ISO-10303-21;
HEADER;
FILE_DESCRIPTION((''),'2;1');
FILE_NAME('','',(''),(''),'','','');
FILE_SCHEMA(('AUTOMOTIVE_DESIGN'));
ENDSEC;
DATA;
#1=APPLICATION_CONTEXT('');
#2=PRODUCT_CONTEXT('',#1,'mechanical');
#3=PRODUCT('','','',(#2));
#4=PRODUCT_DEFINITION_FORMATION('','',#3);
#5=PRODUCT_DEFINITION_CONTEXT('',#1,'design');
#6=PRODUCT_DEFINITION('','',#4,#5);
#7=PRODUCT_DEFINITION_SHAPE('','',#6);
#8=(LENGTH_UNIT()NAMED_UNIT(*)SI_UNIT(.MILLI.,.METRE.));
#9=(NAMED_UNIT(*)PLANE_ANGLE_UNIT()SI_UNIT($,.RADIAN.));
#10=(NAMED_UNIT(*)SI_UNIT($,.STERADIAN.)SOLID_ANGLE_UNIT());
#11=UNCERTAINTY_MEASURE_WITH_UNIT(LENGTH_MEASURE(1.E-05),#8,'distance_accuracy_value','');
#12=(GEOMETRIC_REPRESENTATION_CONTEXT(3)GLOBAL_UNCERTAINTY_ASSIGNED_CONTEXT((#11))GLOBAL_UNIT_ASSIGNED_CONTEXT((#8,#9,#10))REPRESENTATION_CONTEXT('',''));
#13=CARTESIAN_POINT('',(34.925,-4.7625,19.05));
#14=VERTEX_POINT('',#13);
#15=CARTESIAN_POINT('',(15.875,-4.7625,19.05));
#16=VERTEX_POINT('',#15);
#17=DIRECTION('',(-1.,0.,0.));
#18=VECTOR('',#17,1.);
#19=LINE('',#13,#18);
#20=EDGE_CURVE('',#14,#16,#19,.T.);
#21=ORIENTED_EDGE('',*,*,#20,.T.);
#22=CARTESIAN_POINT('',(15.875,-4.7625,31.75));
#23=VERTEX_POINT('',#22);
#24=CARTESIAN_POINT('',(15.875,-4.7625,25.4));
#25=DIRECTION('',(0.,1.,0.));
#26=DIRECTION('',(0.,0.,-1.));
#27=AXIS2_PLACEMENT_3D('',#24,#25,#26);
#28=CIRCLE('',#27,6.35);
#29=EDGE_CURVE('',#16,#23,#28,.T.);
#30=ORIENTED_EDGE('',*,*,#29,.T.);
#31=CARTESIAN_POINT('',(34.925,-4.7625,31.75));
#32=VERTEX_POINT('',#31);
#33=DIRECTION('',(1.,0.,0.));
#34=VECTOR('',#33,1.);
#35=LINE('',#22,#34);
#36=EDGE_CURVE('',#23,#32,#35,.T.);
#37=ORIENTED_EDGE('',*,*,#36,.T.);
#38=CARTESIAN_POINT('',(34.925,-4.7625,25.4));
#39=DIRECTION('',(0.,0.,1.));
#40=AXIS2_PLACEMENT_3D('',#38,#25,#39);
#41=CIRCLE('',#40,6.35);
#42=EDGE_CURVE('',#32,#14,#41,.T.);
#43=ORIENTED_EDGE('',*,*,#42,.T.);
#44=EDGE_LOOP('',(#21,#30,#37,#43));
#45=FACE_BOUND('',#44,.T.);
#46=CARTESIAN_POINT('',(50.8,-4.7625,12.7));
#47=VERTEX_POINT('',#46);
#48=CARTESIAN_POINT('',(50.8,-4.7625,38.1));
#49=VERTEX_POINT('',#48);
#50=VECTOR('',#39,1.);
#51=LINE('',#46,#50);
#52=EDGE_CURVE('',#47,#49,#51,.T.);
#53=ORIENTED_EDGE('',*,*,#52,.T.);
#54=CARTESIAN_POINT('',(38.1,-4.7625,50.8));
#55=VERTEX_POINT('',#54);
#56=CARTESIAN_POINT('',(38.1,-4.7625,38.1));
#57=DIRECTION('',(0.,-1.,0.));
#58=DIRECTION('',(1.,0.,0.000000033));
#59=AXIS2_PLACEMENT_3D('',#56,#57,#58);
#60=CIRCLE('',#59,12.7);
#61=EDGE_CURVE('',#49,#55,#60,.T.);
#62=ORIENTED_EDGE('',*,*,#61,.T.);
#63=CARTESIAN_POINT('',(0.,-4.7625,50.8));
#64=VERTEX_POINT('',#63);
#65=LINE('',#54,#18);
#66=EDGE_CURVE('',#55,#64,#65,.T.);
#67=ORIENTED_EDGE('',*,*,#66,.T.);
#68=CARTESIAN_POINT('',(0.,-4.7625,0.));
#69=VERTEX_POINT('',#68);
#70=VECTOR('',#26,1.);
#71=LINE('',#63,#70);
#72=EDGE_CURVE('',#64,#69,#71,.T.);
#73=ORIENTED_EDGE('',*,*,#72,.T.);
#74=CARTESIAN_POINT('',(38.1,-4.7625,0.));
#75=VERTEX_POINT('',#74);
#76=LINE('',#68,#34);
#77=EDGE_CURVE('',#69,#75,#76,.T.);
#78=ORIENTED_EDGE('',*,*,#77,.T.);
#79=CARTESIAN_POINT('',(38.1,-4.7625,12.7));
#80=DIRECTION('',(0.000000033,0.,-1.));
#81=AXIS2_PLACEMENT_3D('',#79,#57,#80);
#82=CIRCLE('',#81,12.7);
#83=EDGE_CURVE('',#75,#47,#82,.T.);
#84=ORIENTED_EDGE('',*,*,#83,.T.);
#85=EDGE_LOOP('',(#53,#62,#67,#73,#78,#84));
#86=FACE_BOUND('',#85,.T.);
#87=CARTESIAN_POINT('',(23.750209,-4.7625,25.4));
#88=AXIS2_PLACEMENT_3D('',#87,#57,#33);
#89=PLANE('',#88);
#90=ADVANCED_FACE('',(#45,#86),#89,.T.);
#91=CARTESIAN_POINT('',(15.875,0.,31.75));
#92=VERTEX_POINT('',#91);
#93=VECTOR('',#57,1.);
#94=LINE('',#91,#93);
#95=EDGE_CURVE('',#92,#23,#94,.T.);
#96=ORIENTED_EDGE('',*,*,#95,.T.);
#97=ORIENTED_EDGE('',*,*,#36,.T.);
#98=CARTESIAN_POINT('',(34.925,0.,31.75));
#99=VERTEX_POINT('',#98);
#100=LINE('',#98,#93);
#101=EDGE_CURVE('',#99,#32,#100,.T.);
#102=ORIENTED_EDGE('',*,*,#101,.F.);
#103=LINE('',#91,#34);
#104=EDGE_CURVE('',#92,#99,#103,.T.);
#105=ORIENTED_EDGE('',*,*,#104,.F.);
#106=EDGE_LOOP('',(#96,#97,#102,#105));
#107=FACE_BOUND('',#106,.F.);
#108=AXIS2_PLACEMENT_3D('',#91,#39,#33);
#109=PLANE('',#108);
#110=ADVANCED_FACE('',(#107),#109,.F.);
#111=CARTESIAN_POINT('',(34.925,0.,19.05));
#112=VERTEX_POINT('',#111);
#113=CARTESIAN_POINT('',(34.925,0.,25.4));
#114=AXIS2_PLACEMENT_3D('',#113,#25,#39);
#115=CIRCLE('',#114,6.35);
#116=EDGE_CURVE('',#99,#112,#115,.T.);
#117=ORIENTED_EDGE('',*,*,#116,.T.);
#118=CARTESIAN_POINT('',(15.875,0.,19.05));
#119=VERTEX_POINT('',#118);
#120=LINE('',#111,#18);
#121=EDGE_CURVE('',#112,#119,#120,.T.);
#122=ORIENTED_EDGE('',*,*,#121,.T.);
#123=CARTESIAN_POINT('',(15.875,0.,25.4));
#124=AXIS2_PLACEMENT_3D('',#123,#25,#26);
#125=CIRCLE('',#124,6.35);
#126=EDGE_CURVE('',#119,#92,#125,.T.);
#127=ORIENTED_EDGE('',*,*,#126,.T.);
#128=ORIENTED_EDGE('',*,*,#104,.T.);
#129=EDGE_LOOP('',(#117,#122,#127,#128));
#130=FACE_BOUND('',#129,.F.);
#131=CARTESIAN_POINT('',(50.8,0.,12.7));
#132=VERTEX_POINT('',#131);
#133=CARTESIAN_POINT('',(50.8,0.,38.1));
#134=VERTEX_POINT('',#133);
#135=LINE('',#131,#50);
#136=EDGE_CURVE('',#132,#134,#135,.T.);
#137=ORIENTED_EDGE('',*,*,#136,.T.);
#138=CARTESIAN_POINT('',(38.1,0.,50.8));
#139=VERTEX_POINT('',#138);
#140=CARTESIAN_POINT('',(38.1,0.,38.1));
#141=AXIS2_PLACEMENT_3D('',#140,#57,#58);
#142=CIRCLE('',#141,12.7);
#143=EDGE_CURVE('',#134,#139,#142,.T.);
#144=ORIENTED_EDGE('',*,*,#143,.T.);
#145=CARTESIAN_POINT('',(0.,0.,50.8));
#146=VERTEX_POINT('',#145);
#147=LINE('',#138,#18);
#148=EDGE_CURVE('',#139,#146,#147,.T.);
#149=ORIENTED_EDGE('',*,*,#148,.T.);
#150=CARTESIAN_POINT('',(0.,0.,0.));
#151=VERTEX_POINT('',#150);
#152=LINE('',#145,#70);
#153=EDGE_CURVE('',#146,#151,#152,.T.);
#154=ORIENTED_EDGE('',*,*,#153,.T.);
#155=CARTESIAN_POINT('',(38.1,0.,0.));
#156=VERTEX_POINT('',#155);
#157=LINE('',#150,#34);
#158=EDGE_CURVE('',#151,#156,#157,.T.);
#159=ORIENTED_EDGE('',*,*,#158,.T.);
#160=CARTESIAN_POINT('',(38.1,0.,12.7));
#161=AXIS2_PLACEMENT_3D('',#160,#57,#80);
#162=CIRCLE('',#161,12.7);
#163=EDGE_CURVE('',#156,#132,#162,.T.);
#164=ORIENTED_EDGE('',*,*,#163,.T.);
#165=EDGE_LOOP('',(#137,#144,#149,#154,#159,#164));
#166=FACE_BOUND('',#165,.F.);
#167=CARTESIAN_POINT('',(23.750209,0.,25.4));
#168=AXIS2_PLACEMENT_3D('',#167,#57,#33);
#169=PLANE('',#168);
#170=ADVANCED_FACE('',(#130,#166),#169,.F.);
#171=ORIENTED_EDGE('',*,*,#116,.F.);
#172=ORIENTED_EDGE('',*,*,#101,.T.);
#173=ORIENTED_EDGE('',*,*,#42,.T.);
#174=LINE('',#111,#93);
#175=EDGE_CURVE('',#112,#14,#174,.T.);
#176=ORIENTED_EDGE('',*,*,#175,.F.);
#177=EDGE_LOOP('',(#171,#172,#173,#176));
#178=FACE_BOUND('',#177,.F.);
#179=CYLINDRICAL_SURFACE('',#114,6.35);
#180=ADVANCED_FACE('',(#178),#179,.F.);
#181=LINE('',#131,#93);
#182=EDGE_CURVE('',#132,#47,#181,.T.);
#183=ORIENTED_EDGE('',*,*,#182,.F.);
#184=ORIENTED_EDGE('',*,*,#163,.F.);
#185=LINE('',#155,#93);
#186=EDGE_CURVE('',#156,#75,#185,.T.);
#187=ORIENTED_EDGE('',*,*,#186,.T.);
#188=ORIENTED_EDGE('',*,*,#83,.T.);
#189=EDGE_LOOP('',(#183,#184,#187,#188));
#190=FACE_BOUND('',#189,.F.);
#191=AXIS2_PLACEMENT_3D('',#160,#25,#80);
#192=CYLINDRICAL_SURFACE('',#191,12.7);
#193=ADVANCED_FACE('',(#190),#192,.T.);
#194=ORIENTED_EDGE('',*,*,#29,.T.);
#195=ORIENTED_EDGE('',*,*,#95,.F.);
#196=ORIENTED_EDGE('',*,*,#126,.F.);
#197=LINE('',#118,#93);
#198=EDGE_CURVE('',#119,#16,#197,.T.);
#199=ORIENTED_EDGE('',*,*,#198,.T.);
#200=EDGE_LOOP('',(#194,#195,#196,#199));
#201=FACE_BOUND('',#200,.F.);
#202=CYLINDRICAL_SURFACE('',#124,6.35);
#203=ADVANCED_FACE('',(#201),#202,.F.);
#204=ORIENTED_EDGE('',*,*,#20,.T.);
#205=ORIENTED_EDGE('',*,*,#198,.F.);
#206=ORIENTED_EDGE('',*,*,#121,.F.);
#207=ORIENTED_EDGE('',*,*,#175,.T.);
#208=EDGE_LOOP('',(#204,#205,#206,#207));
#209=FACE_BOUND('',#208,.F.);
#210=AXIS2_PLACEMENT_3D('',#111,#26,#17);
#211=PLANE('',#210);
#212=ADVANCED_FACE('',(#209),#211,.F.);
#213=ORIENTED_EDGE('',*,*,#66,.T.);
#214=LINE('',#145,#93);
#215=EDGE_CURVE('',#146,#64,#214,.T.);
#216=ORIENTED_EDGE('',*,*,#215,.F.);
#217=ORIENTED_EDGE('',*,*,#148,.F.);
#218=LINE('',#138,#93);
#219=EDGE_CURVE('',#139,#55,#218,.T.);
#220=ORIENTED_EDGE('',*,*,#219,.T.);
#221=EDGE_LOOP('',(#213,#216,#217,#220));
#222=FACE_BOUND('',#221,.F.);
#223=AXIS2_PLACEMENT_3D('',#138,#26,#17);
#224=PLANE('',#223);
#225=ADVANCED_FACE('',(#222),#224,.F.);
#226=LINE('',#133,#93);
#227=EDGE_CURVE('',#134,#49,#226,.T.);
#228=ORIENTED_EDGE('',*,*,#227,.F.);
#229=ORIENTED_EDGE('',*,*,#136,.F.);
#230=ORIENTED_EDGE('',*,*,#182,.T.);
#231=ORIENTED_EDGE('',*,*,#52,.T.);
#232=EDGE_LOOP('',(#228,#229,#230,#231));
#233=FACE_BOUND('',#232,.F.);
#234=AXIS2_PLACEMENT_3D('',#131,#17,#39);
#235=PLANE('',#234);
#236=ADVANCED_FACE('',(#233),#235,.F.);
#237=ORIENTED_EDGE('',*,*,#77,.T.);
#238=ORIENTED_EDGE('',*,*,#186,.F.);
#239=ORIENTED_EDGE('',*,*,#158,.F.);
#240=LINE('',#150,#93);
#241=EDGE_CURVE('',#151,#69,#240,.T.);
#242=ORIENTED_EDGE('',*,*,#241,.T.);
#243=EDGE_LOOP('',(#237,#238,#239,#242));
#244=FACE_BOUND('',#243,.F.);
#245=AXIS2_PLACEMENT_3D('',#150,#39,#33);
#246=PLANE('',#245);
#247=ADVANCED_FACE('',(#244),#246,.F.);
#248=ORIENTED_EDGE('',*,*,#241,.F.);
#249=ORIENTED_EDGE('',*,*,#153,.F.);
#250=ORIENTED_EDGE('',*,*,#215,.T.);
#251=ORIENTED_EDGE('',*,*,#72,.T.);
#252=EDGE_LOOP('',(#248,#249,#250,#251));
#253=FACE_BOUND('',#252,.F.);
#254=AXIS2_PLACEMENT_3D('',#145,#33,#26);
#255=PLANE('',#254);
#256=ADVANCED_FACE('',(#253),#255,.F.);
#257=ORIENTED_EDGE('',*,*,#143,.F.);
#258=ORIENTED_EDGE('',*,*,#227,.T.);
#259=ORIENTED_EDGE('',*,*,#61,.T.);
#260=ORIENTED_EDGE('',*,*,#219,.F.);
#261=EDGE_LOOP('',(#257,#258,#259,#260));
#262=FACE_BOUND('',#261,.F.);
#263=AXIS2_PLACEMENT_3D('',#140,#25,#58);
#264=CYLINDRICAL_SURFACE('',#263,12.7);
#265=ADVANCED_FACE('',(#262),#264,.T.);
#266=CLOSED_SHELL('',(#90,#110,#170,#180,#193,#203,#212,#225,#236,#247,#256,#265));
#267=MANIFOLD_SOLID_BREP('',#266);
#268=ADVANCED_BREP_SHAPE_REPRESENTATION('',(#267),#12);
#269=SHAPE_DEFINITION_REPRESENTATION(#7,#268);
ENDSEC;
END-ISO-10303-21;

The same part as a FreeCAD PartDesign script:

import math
import FreeCAD as App
import Part
import Sketcher

V = App.Vector
Q = App.Units.Quantity

doc = App.newDocument("Part")
body = doc.addObject("PartDesign::Body", "Body")

sketch1 = body.newObject("Sketcher::SketchObject", "Sketch")
sketch1.AttachmentSupport = (doc.getObject("XZ_Plane"), [""])
sketch1.MapMode = "FlatFace"
sketch1.addGeometry([
    Part.LineSegment(V(0, 51, 0), V(0, 0, 0)),
    Part.LineSegment(V(0, 0, 0), V(38, 0, 0)),
    Part.ArcOfCircle(Part.Circle(V(38, 13, 0), V(0, 0, 1), 13), math.radians(-90), math.radians(0)),
    Part.LineSegment(V(51, 13, 0), V(51, 38, 0)),
    Part.ArcOfCircle(Part.Circle(V(38, 38, 0), V(0, 0, 1), 13), math.radians(0), math.radians(90)),
    Part.LineSegment(V(38, 51, 0), V(0, 51, 0)),
    Part.ArcOfCircle(Part.Circle(V(35, 25, 0), V(0, 0, 1), 6), math.radians(-90), math.radians(90)),
    Part.LineSegment(V(35, 19, 0), V(16, 19, 0)),
    Part.ArcOfCircle(Part.Circle(V(16, 25, 0), V(0, 0, 1), 6), math.radians(90), math.radians(270)),
    Part.LineSegment(V(16, 32, 0), V(35, 32, 0)),
], False)
sketch1.addConstraint([
    Sketcher.Constraint("Coincident", 0, 2, 1, 1),
    Sketcher.Constraint("Tangent", 1, 2, 2, 1),
    Sketcher.Constraint("Tangent", 2, 2, 3, 1),
    Sketcher.Constraint("Tangent", 3, 2, 4, 1),
    Sketcher.Constraint("Tangent", 4, 2, 5, 1),
    Sketcher.Constraint("Coincident", 5, 2, 0, 1),
    Sketcher.Constraint("Tangent", 6, 1, 7, 1),
    Sketcher.Constraint("Tangent", 7, 2, 8, 2),
    Sketcher.Constraint("Tangent", 8, 1, 9, 1),
    Sketcher.Constraint("Tangent", 9, 2, 6, 2),
    Sketcher.Constraint("Vertical", 0),
    Sketcher.Constraint("Horizontal", 1),
    Sketcher.Constraint("Vertical", 3),
    Sketcher.Constraint("Horizontal", 5),
    Sketcher.Constraint("Horizontal", 7),
    Sketcher.Constraint("Horizontal", 9),
    Sketcher.Constraint("Coincident", 0, 2, -1, 1),
    Sketcher.Constraint("Equal", 2, 4),
    Sketcher.Constraint("Radius", 2, Q("0.5 in")),
    Sketcher.Constraint("DistanceY", 0, 2, 0, 1, Q("2 in")),
    Sketcher.Constraint("Radius", 6, Q("0.25 in")),
    Sketcher.Constraint("DistanceX", 1, 1, 1, 2, Q("1.5 in")),
    Sketcher.Constraint("DistanceY", -1, 1, 6, 3, Q("1 in")),
    Sketcher.Constraint("DistanceX", 7, 2, 7, 1, Q("0.75 in")),
    Sketcher.Constraint("DistanceX", -1, 1, 6, 3, Q("1.375 in")),
])
pad1 = body.newObject("PartDesign::Pad", "Pad")
pad1.Profile = sketch1
pad1.Length = Q("0.1875 in")

doc.recompute()
